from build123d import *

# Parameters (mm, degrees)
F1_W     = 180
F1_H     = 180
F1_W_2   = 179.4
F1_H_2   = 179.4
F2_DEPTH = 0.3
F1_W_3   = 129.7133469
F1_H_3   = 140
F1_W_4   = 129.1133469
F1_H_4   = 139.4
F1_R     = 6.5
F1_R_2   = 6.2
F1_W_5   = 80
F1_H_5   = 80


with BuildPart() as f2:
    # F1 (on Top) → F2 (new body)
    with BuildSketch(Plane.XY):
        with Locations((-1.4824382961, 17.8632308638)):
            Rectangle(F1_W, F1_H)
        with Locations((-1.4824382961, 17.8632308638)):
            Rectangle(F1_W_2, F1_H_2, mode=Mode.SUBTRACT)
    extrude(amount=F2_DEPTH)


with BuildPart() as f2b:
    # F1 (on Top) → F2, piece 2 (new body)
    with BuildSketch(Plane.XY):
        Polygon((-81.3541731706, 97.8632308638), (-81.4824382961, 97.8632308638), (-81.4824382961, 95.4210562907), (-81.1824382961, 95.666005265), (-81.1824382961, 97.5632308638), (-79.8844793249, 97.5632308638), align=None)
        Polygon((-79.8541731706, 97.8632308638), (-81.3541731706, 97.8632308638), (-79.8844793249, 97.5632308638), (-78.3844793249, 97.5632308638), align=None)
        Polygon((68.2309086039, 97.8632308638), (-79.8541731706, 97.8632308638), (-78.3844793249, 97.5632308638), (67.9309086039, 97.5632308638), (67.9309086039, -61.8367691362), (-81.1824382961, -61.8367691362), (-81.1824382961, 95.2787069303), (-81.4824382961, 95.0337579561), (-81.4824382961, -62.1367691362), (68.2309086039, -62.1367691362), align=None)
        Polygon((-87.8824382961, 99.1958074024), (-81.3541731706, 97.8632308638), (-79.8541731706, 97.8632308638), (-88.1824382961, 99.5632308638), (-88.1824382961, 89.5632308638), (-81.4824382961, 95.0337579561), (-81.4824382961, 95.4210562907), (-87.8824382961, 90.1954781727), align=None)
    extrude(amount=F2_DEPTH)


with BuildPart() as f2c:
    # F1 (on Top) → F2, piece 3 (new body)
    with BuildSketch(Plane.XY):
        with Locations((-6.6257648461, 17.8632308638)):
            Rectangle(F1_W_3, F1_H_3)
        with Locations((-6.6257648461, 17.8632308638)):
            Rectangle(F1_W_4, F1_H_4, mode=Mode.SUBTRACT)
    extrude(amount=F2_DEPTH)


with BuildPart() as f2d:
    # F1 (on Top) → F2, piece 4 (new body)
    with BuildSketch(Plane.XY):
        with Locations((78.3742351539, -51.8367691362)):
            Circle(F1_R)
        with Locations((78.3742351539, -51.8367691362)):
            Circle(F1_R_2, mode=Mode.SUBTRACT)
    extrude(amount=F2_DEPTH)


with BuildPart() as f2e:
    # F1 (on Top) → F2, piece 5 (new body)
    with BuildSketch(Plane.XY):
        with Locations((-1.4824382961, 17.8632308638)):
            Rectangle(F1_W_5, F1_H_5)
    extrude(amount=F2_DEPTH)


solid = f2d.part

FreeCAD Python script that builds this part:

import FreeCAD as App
import Part
import Sketcher


def add_polygon(sketch, points):
    """Adds a closed chain of lines whose ends are joined by coincident constraints."""
    first, n = sketch.GeometryCount, len(points)
    for a, b in zip(points, points[1:] + points[:1]):
        sketch.addGeometry(Part.LineSegment(App.Vector(*a, 0), App.Vector(*b, 0)), False)
    for i in range(n):
        sketch.addConstraint(Sketcher.Constraint("Coincident", first + i, 2, first + (i + 1) % n, 1))

doc = App.newDocument("Part")
body = doc.addObject("PartDesign::Body", "Body")

# Sketch on XY plane
sketch1 = body.newObject("Sketcher::SketchObject", "Sketch")
sketch1.AttachmentSupport = (doc.getObject("XY_Plane"), [""])
sketch1.MapMode = "FlatFace"
add_polygon(sketch1, [(-91, 108), (-91, -72), (89, -72), (89, 108)])  # lines 0-3
add_polygon(sketch1, [(88, -72), (-91, -72), (-91, 108), (88, 108)])  # lines 4-7
sketch1.addConstraint(Sketcher.Constraint("Vertical", 0))
sketch1.addConstraint(Sketcher.Constraint("Horizontal", 1))
sketch1.addConstraint(Sketcher.Constraint("Vertical", 2))
sketch1.addConstraint(Sketcher.Constraint("Horizontal", 3))
sketch1.addConstraint(Sketcher.Constraint("Horizontal", 4))
sketch1.addConstraint(Sketcher.Constraint("Vertical", 5))
sketch1.addConstraint(Sketcher.Constraint("Horizontal", 6))
sketch1.addConstraint(Sketcher.Constraint("Vertical", 7))
sketch1.addConstraint(Sketcher.Constraint("Equal", 3, 0))
sketch1.addConstraint(Sketcher.Constraint("Equal", 6, 5))
sketch1.addConstraint(Sketcher.Constraint("DistanceX", 1, 1, 1, 2, 180.0))
sketch1.addConstraint(Sketcher.Constraint("DistanceX", 4, 2, 4, 1, 179.4))
sketch1.addConstraint(Sketcher.Constraint("DistanceX", 0, 2, 4, 2, 0.3))
sketch1.addConstraint(Sketcher.Constraint("DistanceY", 0, 2, 4, 2, 0.3))
sketch1.addConstraint(Sketcher.Constraint("DistanceX", 0, 2, -1, 1, 91.482438))
sketch1.addConstraint(Sketcher.Constraint("DistanceY", 0, 2, -1, 1, 72.136769))
pad1 = body.newObject("PartDesign::Pad", "Pad")
pad1.Profile = sketch1
pad1.Length = 0.3
body2 = doc.addObject("PartDesign::Body", "Body001")

# Sketch on XY plane
sketch2 = body2.newObject("Sketcher::SketchObject", "Sketch001")
sketch2.AttachmentSupport = (doc.getObject("XY_Plane001"), [""])
sketch2.MapMode = "FlatFace"
add_polygon(sketch2, [(-81.48, 95.03), (-81.48, -62.14), (68.23, -62.14), (68.23, 97.86), (-79.85, 97.86), (-88.18, 99.56), (-88.18, 89.56)])  # lines 0-6
add_polygon(sketch2, [(-81.48, 95.42), (-81.18, 95.67), (-81.18, 97.56), (67.93, 97.56), (67.93, -61.84), (-81.18, -61.84), (-81.18, 95.28), (-81.48, 95.03)])  # lines 7-14
add_polygon(sketch2, [(-81.48, 95.42), (-87.88, 90.2), (-87.88, 99.2), (-81.35, 97.86), (-81.48, 97.86)])  # lines 15-19
sketch2.addConstraint(Sketcher.Constraint("Vertical", 0))
sketch2.addConstraint(Sketcher.Constraint("Horizontal", 1))
sketch2.addConstraint(Sketcher.Constraint("Vertical", 2))
sketch2.addConstraint(Sketcher.Constraint("Horizontal", 3))
sketch2.addConstraint(Sketcher.Constraint("Vertical", 5))
sketch2.addConstraint(Sketcher.Constraint("Vertical", 8))
sketch2.addConstraint(Sketcher.Constraint("Horizontal", 9))
sketch2.addConstraint(Sketcher.Constraint("Vertical", 10))
sketch2.addConstraint(Sketcher.Constraint("Horizontal", 11))
sketch2.addConstraint(Sketcher.Constraint("Vertical", 12))
sketch2.addConstraint(Sketcher.Constraint("Vertical", 14))
sketch2.addConstraint(Sketcher.Constraint("Vertical", 16))
sketch2.addConstraint(Sketcher.Constraint("Horizontal", 18))
sketch2.addConstraint(Sketcher.Constraint("Vertical", 19))
sketch2.addConstraint(Sketcher.Constraint("Coincident", 13, 2, 6, 2))
sketch2.addConstraint(Sketcher.Constraint("Coincident", 19, 2, 14, 2))
sketch2.addConstraint(Sketcher.Constraint("Parallel", 6, 7))
sketch2.addConstraint(Sketcher.Constraint("Parallel", 7, 13))
sketch2.addConstraint(Sketcher.Constraint("Parallel", 13, 15))
sketch2.addConstraint(Sketcher.Constraint("Parallel", 4, 17))
sketch2.addConstraint(Sketcher.Constraint("Horizontal", 3, 2, 17, 2))
sketch2.addConstraint(Sketcher.Constraint("Vertical", 8, 2, 11, 2))
sketch2.addConstraint(Sketcher.Constraint("DistanceY", 2, 1, 2, 2, 160.0))
sketch2.addConstraint(Sketcher.Constraint("DistanceY", 5, 2, 5, 1, 10.0))
sketch2.addConstraint(Sketcher.Constraint("DistanceY", 10, 2, 10, 1, 159.4))
sketch2.addConstraint(Sketcher.Constraint("DistanceX", 4, 2, 7, 2, 7.0))
sketch2.addConstraint(Sketcher.Constraint("DistanceY", 8, 2, 4, 2, 2.0))
sketch2.addConstraint(Sketcher.Constraint("Distance", 4, 8.5))
sketch2.addConstraint(Sketcher.Constraint("DistanceY", 3, 2, 4, 2, 1.7))
sketch2.addConstraint(Sketcher.Constraint("DistanceX", 4, 2, 0, 2, 6.7))
sketch2.addConstraint(Sketcher.Constraint("DistanceX", 9, 2, 2, 2, 0.3))
sketch2.addConstraint(Sketcher.Constraint("DistanceX", 5, 2, 15, 2, 0.3))
sketch2.addConstraint(Sketcher.Constraint("DistanceX", 17, 2, 3, 2, 1.5))
sketch2.addConstraint(Sketcher.Constraint("DistanceY", 14, 1, 14, 2, 0.387298))
sketch2.addConstraint(Sketcher.Constraint("Distance", 7, 0.387298))
sketch2.addConstraint(Sketcher.Constraint("DistanceX", 3, 2, 3, 1, 148.085082))
sketch2.addConstraint(Sketcher.Constraint("DistanceX", 0, 2, -1, 1, 81.482438))
sketch2.addConstraint(Sketcher.Constraint("DistanceY", 0, 2, -1, 1, 62.136769))
pad2 = body2.newObject("PartDesign::Pad", "Pad001")
pad2.Profile = sketch2
pad2.Length = 0.3
body3 = doc.addObject("PartDesign::Body", "Body002")

# Sketch on XY plane
sketch3 = body3.newObject("Sketcher::SketchObject", "Sketch002")
sketch3.AttachmentSupport = (doc.getObject("XY_Plane002"), [""])
sketch3.MapMode = "FlatFace"
add_polygon(sketch3, [(-71, 88), (-71, -52), (58, -52), (58, 88)])  # lines 0-3
add_polygon(sketch3, [(58, -52), (-71, -52), (-71, 88), (58, 88)])  # lines 4-7
sketch3.addConstraint(Sketcher.Constraint("Vertical", 0))
sketch3.addConstraint(Sketcher.Constraint("Horizontal", 1))
sketch3.addConstraint(Sketcher.Constraint("Vertical", 2))
sketch3.addConstraint(Sketcher.Constraint("Horizontal", 3))
sketch3.addConstraint(Sketcher.Constraint("Horizontal", 4))
sketch3.addConstraint(Sketcher.Constraint("Vertical", 5))
sketch3.addConstraint(Sketcher.Constraint("Horizontal", 6))
sketch3.addConstraint(Sketcher.Constraint("Vertical", 7))
sketch3.addConstraint(Sketcher.Constraint("DistanceY", 0, 2, 0, 1, 140.0))
sketch3.addConstraint(Sketcher.Constraint("DistanceY", 5, 1, 5, 2, 139.4))
sketch3.addConstraint(Sketcher.Constraint("DistanceX", 0, 2, 4, 2, 0.3))
sketch3.addConstraint(Sketcher.Constraint("DistanceY", 0, 2, 4, 2, 0.3))
sketch3.addConstraint(Sketcher.Constraint("DistanceX", 6, 2, 2, 2, 0.3))
sketch3.addConstraint(Sketcher.Constraint("DistanceX", 1, 1, 1, 2, 129.713347))
sketch3.addConstraint(Sketcher.Constraint("DistanceX", 0, 2, -1, 1, 71.482438))
sketch3.addConstraint(Sketcher.Constraint("DistanceY", 0, 2, -1, 1, 52.136769))
pad3 = body3.newObject("PartDesign::Pad", "Pad002")
pad3.Profile = sketch3
pad3.Length = 0.3
body4 = doc.addObject("PartDesign::Body", "Body003")

# Sketch on XY plane
sketch4 = body4.newObject("Sketcher::SketchObject", "Sketch003")
sketch4.AttachmentSupport = (doc.getObject("XY_Plane003"), [""])
sketch4.MapMode = "FlatFace"
sketch4.addGeometry(Part.Circle(App.Vector(78, -52, 0), App.Vector(0, 0, 1), 6), False)
sketch4.addGeometry(Part.Circle(App.Vector(78, -52, 0), App.Vector(0, 0, 1), 6), False)
sketch4.addConstraint(Sketcher.Constraint("Coincident", 1, 3, 0, 3))
sketch4.addConstraint(Sketcher.Constraint("Diameter", 0, 13.0))
sketch4.addConstraint(Sketcher.Constraint("Diameter", 1, 12.4))
sketch4.addConstraint(Sketcher.Constraint("DistanceY", 0, 3, -1, 1, 51.836769))
sketch4.addConstraint(Sketcher.Constraint("DistanceX", -1, 1, 0, 3, 78.374235))
pad4 = body4.newObject("PartDesign::Pad", "Pad003")
pad4.Profile = sketch4
pad4.Length = 0.3
body5 = doc.addObject("PartDesign::Body", "Body004")

# Sketch on XY plane
sketch5 = body5.newObject("Sketcher::SketchObject", "Sketch004")
sketch5.AttachmentSupport = (doc.getObject("XY_Plane004"), [""])
sketch5.MapMode = "FlatFace"
add_polygon(sketch5, [(-41, 58), (-41, -22), (39, -22), (39, 58)])  # lines 0-3
sketch5.addConstraint(Sketcher.Constraint("Vertical", 0))
sketch5.addConstraint(Sketcher.Constraint("Horizontal", 1))
sketch5.addConstraint(Sketcher.Constraint("Vertical", 2))
sketch5.addConstraint(Sketcher.Constraint("Horizontal", 3))
sketch5.addConstraint(Sketcher.Constraint("Equal", 3, 0))
sketch5.addConstraint(Sketcher.Constraint("DistanceX", 1, 1, 1, 2, 80.0))
sketch5.addConstraint(Sketcher.Constraint("DistanceX", 0, 2, -1, 1, 41.482438))
sketch5.addConstraint(Sketcher.Constraint("DistanceY", 0, 2, -1, 1, 22.136769))
pad5 = body5.newObject("PartDesign::Pad", "Pad004")
pad5.Profile = sketch5
pad5.Length = 0.3
body.Visibility = False
body2.Visibility = False
body3.Visibility = False
body5.Visibility = False

doc.recompute()
